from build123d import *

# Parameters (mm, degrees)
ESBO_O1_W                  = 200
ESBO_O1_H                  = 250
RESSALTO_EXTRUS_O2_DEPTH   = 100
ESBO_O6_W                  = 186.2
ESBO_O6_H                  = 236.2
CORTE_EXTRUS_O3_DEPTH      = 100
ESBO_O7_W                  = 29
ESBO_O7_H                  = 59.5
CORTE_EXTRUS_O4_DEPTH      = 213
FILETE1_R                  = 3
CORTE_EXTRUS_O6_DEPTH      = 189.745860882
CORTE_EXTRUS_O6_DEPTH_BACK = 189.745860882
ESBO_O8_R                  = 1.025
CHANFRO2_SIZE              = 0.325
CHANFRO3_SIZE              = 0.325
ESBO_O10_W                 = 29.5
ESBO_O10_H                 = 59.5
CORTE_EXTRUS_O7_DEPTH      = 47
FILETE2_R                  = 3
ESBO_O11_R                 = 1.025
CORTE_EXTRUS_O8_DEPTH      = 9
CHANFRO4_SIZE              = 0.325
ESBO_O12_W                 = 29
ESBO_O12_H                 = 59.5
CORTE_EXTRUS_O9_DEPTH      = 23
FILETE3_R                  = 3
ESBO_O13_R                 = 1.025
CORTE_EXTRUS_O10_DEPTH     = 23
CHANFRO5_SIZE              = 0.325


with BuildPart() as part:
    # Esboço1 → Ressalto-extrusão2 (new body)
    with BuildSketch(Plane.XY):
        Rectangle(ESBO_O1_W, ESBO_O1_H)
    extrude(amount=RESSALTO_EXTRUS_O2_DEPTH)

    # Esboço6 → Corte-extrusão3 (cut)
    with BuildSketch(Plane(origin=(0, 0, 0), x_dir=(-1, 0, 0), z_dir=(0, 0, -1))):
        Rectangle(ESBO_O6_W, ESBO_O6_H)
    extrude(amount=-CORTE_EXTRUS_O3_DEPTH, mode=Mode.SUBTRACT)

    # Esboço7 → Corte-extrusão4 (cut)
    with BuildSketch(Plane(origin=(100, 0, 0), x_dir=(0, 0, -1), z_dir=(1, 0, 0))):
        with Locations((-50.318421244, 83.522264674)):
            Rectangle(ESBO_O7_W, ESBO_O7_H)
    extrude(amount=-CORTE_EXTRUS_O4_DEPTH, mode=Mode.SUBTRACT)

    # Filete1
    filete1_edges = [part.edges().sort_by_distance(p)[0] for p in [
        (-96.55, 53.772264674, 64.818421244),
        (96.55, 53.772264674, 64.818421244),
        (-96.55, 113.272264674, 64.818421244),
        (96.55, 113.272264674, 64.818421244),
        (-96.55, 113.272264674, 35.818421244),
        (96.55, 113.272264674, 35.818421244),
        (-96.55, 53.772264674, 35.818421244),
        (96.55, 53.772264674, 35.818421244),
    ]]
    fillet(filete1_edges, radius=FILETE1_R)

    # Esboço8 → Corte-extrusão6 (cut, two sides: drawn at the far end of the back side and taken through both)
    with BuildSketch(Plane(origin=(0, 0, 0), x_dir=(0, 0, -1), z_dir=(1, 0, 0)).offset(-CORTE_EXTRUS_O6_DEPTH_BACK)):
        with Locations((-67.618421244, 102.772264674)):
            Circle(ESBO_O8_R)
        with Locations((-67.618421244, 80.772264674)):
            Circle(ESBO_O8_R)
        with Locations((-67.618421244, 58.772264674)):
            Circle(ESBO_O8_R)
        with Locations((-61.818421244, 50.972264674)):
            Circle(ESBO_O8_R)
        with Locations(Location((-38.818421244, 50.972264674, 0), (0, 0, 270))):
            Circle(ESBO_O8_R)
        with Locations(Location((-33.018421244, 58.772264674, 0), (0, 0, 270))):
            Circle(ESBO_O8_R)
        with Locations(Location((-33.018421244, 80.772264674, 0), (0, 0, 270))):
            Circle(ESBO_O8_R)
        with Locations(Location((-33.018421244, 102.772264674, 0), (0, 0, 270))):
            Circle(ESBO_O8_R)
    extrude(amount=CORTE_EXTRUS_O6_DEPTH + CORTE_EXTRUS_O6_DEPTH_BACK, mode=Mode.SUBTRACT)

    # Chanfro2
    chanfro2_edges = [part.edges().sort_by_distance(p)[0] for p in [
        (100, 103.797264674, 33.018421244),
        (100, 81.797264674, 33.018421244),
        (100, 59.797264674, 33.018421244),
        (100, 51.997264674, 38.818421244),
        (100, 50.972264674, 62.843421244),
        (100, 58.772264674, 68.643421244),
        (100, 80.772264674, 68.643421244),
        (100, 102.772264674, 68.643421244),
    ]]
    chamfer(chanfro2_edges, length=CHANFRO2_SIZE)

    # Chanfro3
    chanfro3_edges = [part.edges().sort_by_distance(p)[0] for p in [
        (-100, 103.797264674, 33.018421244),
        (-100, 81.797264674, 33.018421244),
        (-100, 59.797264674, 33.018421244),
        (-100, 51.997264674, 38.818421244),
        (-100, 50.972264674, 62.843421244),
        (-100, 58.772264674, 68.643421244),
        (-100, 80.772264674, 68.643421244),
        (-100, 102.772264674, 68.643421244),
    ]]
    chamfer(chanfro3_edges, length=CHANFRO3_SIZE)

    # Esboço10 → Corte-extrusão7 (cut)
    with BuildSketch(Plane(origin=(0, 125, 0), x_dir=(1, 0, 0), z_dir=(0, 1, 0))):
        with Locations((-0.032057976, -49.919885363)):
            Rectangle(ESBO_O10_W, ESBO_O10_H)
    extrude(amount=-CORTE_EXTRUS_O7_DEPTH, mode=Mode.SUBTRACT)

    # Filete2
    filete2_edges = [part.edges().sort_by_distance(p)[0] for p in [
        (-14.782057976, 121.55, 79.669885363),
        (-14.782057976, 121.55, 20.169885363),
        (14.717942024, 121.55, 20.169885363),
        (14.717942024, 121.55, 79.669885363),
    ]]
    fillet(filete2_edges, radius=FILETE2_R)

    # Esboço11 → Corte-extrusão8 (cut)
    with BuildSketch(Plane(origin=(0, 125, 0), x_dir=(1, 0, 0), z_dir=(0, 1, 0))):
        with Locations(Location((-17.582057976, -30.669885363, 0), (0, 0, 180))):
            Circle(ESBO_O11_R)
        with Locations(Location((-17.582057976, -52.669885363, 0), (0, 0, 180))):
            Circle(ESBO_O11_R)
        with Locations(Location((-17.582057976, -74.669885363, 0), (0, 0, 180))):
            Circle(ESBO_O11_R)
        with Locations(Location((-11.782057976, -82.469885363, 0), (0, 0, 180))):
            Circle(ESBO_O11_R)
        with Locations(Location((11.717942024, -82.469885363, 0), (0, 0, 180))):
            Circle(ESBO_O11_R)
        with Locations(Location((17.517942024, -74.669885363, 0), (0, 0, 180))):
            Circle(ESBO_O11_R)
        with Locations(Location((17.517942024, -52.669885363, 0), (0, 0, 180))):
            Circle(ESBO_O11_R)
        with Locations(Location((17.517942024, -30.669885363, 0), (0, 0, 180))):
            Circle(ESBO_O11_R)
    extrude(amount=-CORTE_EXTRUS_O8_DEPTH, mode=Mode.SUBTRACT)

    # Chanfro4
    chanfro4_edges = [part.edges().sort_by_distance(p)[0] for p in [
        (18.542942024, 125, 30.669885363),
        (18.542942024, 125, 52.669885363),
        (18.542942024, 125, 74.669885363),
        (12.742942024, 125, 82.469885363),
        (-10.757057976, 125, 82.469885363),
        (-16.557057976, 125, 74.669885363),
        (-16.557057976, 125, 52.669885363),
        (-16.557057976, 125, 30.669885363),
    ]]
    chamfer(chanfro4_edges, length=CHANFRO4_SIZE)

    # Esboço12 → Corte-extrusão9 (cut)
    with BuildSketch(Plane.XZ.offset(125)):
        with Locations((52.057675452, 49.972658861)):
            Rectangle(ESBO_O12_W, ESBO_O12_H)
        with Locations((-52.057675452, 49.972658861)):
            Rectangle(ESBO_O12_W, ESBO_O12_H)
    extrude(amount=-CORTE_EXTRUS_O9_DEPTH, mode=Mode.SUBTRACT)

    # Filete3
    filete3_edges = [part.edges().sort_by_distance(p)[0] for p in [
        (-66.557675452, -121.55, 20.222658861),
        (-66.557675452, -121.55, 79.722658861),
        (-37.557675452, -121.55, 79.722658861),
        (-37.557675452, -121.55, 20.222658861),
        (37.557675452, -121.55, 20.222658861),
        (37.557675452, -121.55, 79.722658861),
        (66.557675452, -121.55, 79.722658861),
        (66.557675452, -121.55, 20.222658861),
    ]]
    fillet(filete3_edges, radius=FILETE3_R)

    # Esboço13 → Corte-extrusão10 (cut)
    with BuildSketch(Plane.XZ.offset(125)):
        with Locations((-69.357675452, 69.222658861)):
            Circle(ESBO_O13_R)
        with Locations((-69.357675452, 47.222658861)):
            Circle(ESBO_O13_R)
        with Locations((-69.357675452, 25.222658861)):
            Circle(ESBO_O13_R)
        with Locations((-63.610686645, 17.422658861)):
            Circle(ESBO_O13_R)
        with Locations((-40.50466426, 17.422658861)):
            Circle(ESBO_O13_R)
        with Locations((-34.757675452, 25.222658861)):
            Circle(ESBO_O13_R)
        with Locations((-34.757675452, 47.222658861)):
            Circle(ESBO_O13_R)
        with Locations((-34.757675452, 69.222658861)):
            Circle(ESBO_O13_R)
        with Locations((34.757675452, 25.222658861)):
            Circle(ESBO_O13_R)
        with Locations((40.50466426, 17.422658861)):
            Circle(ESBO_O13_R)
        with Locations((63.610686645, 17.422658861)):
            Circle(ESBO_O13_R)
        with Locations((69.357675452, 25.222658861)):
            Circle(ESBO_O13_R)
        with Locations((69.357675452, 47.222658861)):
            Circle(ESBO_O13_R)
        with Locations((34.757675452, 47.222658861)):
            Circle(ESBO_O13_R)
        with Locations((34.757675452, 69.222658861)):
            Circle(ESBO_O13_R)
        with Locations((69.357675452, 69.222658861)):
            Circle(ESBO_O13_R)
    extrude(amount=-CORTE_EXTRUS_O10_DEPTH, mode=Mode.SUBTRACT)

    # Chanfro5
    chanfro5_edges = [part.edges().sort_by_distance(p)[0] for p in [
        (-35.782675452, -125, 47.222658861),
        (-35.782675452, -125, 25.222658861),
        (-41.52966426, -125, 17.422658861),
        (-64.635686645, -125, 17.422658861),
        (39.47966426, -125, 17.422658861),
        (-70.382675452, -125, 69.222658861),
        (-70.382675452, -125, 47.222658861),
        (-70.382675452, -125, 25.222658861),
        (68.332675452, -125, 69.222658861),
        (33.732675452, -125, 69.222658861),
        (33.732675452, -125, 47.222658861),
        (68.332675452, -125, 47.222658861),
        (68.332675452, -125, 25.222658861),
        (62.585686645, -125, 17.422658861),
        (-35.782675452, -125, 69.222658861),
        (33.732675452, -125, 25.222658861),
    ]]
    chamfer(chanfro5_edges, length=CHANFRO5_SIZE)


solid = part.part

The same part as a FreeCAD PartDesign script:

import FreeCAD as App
import Part
import Sketcher


def edges_at(feature, points):
    """Names of the edges that pass closest to the given points."""
    edges = feature.Shape.Edges
    near = lambda p: min(range(len(edges)), key=lambda i: edges[i].distToShape(Part.Vertex(*p))[0])
    return sorted({f"Edge{near(p) + 1}" for p in points})

doc = App.newDocument("Part")
body = doc.addObject("PartDesign::Body", "Body")

# Sketch on XY plane
sketch1 = doc.addObject("Sketcher::SketchObject", "Sketch")
body.addObject(sketch1)
sketch1.AttachmentSupport = (doc.XY_Plane, [""])
sketch1.MapMode = "FlatFace"
sketch1.addGeometry([
    Part.LineSegment(App.Vector(-100, 125, 0), App.Vector(-100, -125, 0)),
    Part.LineSegment(App.Vector(-100, -125, 0), App.Vector(100, -125, 0)),
    Part.LineSegment(App.Vector(100, -125, 0), App.Vector(100, 125, 0)),
    Part.LineSegment(App.Vector(100, 125, 0), App.Vector(-100, 125, 0)),
], False)
sketch1.addConstraint([
    Sketcher.Constraint("Coincident", 0, 2, 1, 1),
    Sketcher.Constraint("Coincident", 1, 2, 2, 1),
    Sketcher.Constraint("Coincident", 2, 2, 3, 1),
    Sketcher.Constraint("Coincident", 3, 2, 0, 1),
    Sketcher.Constraint("Vertical", 0),
    Sketcher.Constraint("Horizontal", 1),
    Sketcher.Constraint("Vertical", 2),
    Sketcher.Constraint("Horizontal", 3),
    Sketcher.Constraint("Symmetric", 0, 2, 2, 2, -1, 1),
    Sketcher.Constraint("DistanceX", 1, 1, 1, 2, 200.0),
    Sketcher.Constraint("DistanceY", 0, 2, 0, 1, 250.0),
])
pad1 = doc.addObject("PartDesign::Pad", "Pad")
body.addObject(pad1)
pad1.Profile = sketch1
pad1.Length = 100

# Sketch on XY plane
sketch2 = doc.addObject("Sketcher::SketchObject", "Sketch001")
body.addObject(sketch2)
sketch2.AttachmentSupport = (doc.XY_Plane, [""])
sketch2.MapMode = "FlatFace"
sketch2.addGeometry([
    Part.LineSegment(App.Vector(93, 118, 0), App.Vector(93, -118, 0)),
    Part.LineSegment(App.Vector(93, -118, 0), App.Vector(-93, -118, 0)),
    Part.LineSegment(App.Vector(-93, -118, 0), App.Vector(-93, 118, 0)),
    Part.LineSegment(App.Vector(-93, 118, 0), App.Vector(93, 118, 0)),
], False)
sketch2.addConstraint([
    Sketcher.Constraint("Coincident", 0, 2, 1, 1),
    Sketcher.Constraint("Coincident", 1, 2, 2, 1),
    Sketcher.Constraint("Coincident", 2, 2, 3, 1),
    Sketcher.Constraint("Coincident", 3, 2, 0, 1),
    Sketcher.Constraint("Vertical", 0),
    Sketcher.Constraint("Horizontal", 1),
    Sketcher.Constraint("Vertical", 2),
    Sketcher.Constraint("Horizontal", 3),
    Sketcher.Constraint("Symmetric", 0, 2, 2, 2, -1, 1),
    Sketcher.Constraint("DistanceX", 1, 2, 1, 1, 186.2),
    Sketcher.Constraint("DistanceY", 0, 2, 0, 1, 236.2),
])
pocket1 = doc.addObject("PartDesign::Pocket", "Pocket")
body.addObject(pocket1)
pocket1.Profile = sketch2
pocket1.Length = 100
pocket1.Reversed = True

# Sketch on YZ plane
sketch3 = doc.addObject("Sketcher::SketchObject", "Sketch002")
body.addObject(sketch3)
sketch3.AttachmentSupport = (doc.YZ_Plane, [""])
sketch3.MapMode = "FlatFace"
sketch3.AttachmentOffset = App.Placement(App.Vector(0, 0, 100), App.Rotation())
sketch3.addGeometry([
    Part.LineSegment(App.Vector(113, 65, 0), App.Vector(54, 65, 0)),
    Part.LineSegment(App.Vector(54, 65, 0), App.Vector(54, 36, 0)),
    Part.LineSegment(App.Vector(54, 36, 0), App.Vector(113, 36, 0)),
    Part.LineSegment(App.Vector(113, 36, 0), App.Vector(113, 65, 0)),
], False)
sketch3.addConstraint([
    Sketcher.Constraint("Coincident", 0, 2, 1, 1),
    Sketcher.Constraint("Coincident", 1, 2, 2, 1),
    Sketcher.Constraint("Coincident", 2, 2, 3, 1),
    Sketcher.Constraint("Coincident", 3, 2, 0, 1),
    Sketcher.Constraint("Horizontal", 0),
    Sketcher.Constraint("Vertical", 1),
    Sketcher.Constraint("Horizontal", 2),
    Sketcher.Constraint("Vertical", 3),
    Sketcher.Constraint("DistanceY", 1, 2, 1, 1, 29.0),
    Sketcher.Constraint("DistanceX", 0, 2, 0, 1, 59.5),
    Sketcher.Constraint("DistanceY", -1, 1, 0, 2, 64.818421),
    Sketcher.Constraint("DistanceX", -1, 1, 0, 2, 53.772265),
])
pocket2 = doc.addObject("PartDesign::Pocket", "Pocket001")
body.addObject(pocket2)
pocket2.Profile = sketch3
pocket2.Length = 213
doc.recompute()

fillet = doc.addObject("PartDesign::Fillet", "Fillet")
body.addObject(fillet)
fillet.Base = (pocket2, edges_at(pocket2, [
    (-96.55, 53.772, 64.818),
    (96.55, 53.772, 64.818),
    (-96.55, 113.272, 64.818),
    (96.55, 113.272, 64.818),
    (-96.55, 113.272, 35.818),
    (96.55, 113.272, 35.818),
    (-96.55, 53.772, 35.818),
    (96.55, 53.772, 35.818),
]))
fillet.Radius = 3

# Sketch on YZ plane
sketch4 = doc.addObject("Sketcher::SketchObject", "Sketch003")
body.addObject(sketch4)
sketch4.AttachmentSupport = (doc.YZ_Plane, [""])
sketch4.MapMode = "FlatFace"
sketch4.addGeometry([
    Part.Circle(App.Vector(102.8, 67.6, 0), App.Vector(0, 0, 1), 1),  # 0
    Part.Circle(App.Vector(80.8, 67.6, 0), App.Vector(0, 0, 1), 1),  # 1
    Part.Circle(App.Vector(58.8, 67.6, 0), App.Vector(0, 0, 1), 1),  # 2
    Part.Circle(App.Vector(51, 61.8, 0), App.Vector(0, 0, 1), 1),  # 3
    Part.Circle(App.Vector(51, 38.8, 0), App.Vector(0, 0, 1), 1),  # 4
    Part.Circle(App.Vector(58.8, 33, 0), App.Vector(0, 0, 1), 1),  # 5
    Part.Circle(App.Vector(80.8, 33, 0), App.Vector(0, 0, 1), 1),  # 6
    Part.Circle(App.Vector(102.8, 33, 0), App.Vector(0, 0, 1), 1),  # 7
], False)
sketch4.addConstraint([
    Sketcher.Constraint("Equal", 0, 1),
    Sketcher.Constraint("Equal", 1, 2),
    Sketcher.Constraint("Equal", 2, 3),
    Sketcher.Constraint("Equal", 3, 4),
    Sketcher.Constraint("Equal", 4, 5),
    Sketcher.Constraint("Equal", 5, 6),
    Sketcher.Constraint("Equal", 6, 7),
    Sketcher.Constraint("Horizontal", 0, 3, 1, 3),
    Sketcher.Constraint("Horizontal", 1, 3, 2, 3),
    Sketcher.Constraint("Horizontal", 5, 3, 6, 3),
    Sketcher.Constraint("Horizontal", 6, 3, 7, 3),
    Sketcher.Constraint("Vertical", 3, 3, 4, 3),
    Sketcher.Constraint("Vertical", 2, 3, 5, 3),
    Sketcher.Constraint("Vertical", 1, 3, 6, 3),
    Sketcher.Constraint("Vertical", 0, 3, 7, 3),
    Sketcher.Constraint("Diameter", 0, 2.05),
    Sketcher.Constraint("DistanceX", 1, 3, 0, 3, 22.0),
    Sketcher.Constraint("DistanceX", 2, 3, 1, 3, 22.0),
    Sketcher.Constraint("DistanceY", 4, 3, 3, 3, 23.0),
    Sketcher.Constraint("DistanceX", 3, 3, 2, 3, 7.8),
    Sketcher.Constraint("DistanceY", 3, 3, 2, 3, 5.8),
    Sketcher.Constraint("DistanceY", 5, 3, 4, 3, 5.8),
    Sketcher.Constraint("DistanceY", -1, 1, 0, 3, 67.618421),
    Sketcher.Constraint("DistanceX", -1, 1, 0, 3, 102.772265),
])
pocket3 = doc.addObject("PartDesign::Pocket", "Pocket002")
body.addObject(pocket3)
pocket3.Profile = sketch4
pocket3.Type = "ThroughAll"
pocket3.Midplane = True
doc.recompute()

chamfer = doc.addObject("PartDesign::Chamfer", "Chamfer")
body.addObject(chamfer)
chamfer.Base = (pocket3, edges_at(pocket3, [
    (100, 103.797, 33.018),
    (100, 81.797, 33.018),
    (100, 59.797, 33.018),
    (100, 51.997, 38.818),
    (100, 50.972, 62.843),
    (100, 58.772, 68.643),
    (100, 80.772, 68.643),
    (100, 102.772, 68.643),
]))
chamfer.Size = 0.325
doc.recompute()

chamfer2 = doc.addObject("PartDesign::Chamfer", "Chamfer001")
body.addObject(chamfer2)
chamfer2.Base = (chamfer, edges_at(chamfer, [
    (-100, 103.797, 33.018),
    (-100, 81.797, 33.018),
    (-100, 59.797, 33.018),
    (-100, 51.997, 38.818),
    (-100, 50.972, 62.843),
    (-100, 58.772, 68.643),
    (-100, 80.772, 68.643),
    (-100, 102.772, 68.643),
]))
chamfer2.Size = 0.325

# Sketch on XZ plane
sketch5 = doc.addObject("Sketcher::SketchObject", "Sketch004")
body.addObject(sketch5)
sketch5.AttachmentSupport = (doc.XZ_Plane, [""])
sketch5.MapMode = "FlatFace"
sketch5.AttachmentOffset = App.Placement(App.Vector(0, 0, -125), App.Rotation())
sketch5.addGeometry([
    Part.LineSegment(App.Vector(-15, 20, 0), App.Vector(-15, 80, 0)),
    Part.LineSegment(App.Vector(-15, 80, 0), App.Vector(15, 80, 0)),
    Part.LineSegment(App.Vector(15, 80, 0), App.Vector(15, 20, 0)),
    Part.LineSegment(App.Vector(15, 20, 0), App.Vector(-15, 20, 0)),
], False)
sketch5.addConstraint([
    Sketcher.Constraint("Coincident", 0, 2, 1, 1),
    Sketcher.Constraint("Coincident", 1, 2, 2, 1),
    Sketcher.Constraint("Coincident", 2, 2, 3, 1),
    Sketcher.Constraint("Coincident", 3, 2, 0, 1),
    Sketcher.Constraint("Vertical", 0),
    Sketcher.Constraint("Horizontal", 1),
    Sketcher.Constraint("Vertical", 2),
    Sketcher.Constraint("Horizontal", 3),
    Sketcher.Constraint("DistanceX", 1, 1, 1, 2, 29.5),
    Sketcher.Constraint("DistanceY", 0, 1, 0, 2, 59.5),
    Sketcher.Constraint("DistanceX", 0, 2, -1, 1, 14.782058),
    Sketcher.Constraint("DistanceY", -1, 1, 0, 2, 79.669885),
])
pocket4 = doc.addObject("PartDesign::Pocket", "Pocket003")
body.addObject(pocket4)
pocket4.Profile = sketch5
pocket4.Length = 47
pocket4.Reversed = True
doc.recompute()

fillet2 = doc.addObject("PartDesign::Fillet", "Fillet001")
body.addObject(fillet2)
fillet2.Base = (pocket4, edges_at(pocket4, [
    (-14.782, 121.55, 79.67),
    (-14.782, 121.55, 20.17),
    (14.718, 121.55, 20.17),
    (14.718, 121.55, 79.67),
]))
fillet2.Radius = 3

# Sketch on XZ plane
sketch6 = doc.addObject("Sketcher::SketchObject", "Sketch005")
body.addObject(sketch6)
sketch6.AttachmentSupport = (doc.XZ_Plane, [""])
sketch6.MapMode = "FlatFace"
sketch6.AttachmentOffset = App.Placement(App.Vector(0, 0, -125), App.Rotation())
sketch6.addGeometry([
    Part.Circle(App.Vector(-17.6, 30.7, 0), App.Vector(0, 0, 1), 1),  # 0
    Part.Circle(App.Vector(-17.6, 52.7, 0), App.Vector(0, 0, 1), 1),  # 1
    Part.Circle(App.Vector(-17.6, 74.7, 0), App.Vector(0, 0, 1), 1),  # 2
    Part.Circle(App.Vector(-11.8, 82.5, 0), App.Vector(0, 0, 1), 1),  # 3
    Part.Circle(App.Vector(11.7, 82.5, 0), App.Vector(0, 0, 1), 1),  # 4
    Part.Circle(App.Vector(17.5, 74.7, 0), App.Vector(0, 0, 1), 1),  # 5
    Part.Circle(App.Vector(17.5, 52.7, 0), App.Vector(0, 0, 1), 1),  # 6
    Part.Circle(App.Vector(17.5, 30.7, 0), App.Vector(0, 0, 1), 1),  # 7
], False)
sketch6.addConstraint([
    Sketcher.Constraint("Equal", 0, 1),
    Sketcher.Constraint("Equal", 1, 2),
    Sketcher.Constraint("Equal", 2, 3),
    Sketcher.Constraint("Equal", 3, 4),
    Sketcher.Constraint("Equal", 4, 5),
    Sketcher.Constraint("Equal", 5, 6),
    Sketcher.Constraint("Equal", 6, 7),
    Sketcher.Constraint("Horizontal", 3, 3, 4, 3),
    Sketcher.Constraint("Horizontal", 2, 3, 5, 3),
    Sketcher.Constraint("Horizontal", 1, 3, 6, 3),
    Sketcher.Constraint("Horizontal", 0, 3, 7, 3),
    Sketcher.Constraint("Vertical", 0, 3, 1, 3),
    Sketcher.Constraint("Vertical", 1, 3, 2, 3),
    Sketcher.Constraint("Vertical", 5, 3, 6, 3),
    Sketcher.Constraint("Vertical", 6, 3, 7, 3),
    Sketcher.Constraint("Diameter", 0, 2.05),
    Sketcher.Constraint("DistanceY", 0, 3, 1, 3, 22.0),
    Sketcher.Constraint("DistanceY", 1, 3, 2, 3, 22.0),
    Sketcher.Constraint("DistanceX", 2, 3, 3, 3, 5.8),
    Sketcher.Constraint("DistanceY", 2, 3, 3, 3, 7.8),
    Sketcher.Constraint("DistanceX", 3, 3, 4, 3, 23.5),
    Sketcher.Constraint("DistanceX", 4, 3, 5, 3, 5.8),
    Sketcher.Constraint("DistanceX", 0, 3, -1, 1, 17.582058),
    Sketcher.Constraint("DistanceY", -1, 1, 0, 3, 30.669885),
])
pocket5 = doc.addObject("PartDesign::Pocket", "Pocket004")
body.addObject(pocket5)
pocket5.Profile = sketch6
pocket5.Length = 9
pocket5.Reversed = True
doc.recompute()

chamfer3 = doc.addObject("PartDesign::Chamfer", "Chamfer002")
body.addObject(chamfer3)
chamfer3.Base = (pocket5, edges_at(pocket5, [
    (18.543, 125, 30.67),
    (18.543, 125, 52.67),
    (18.543, 125, 74.67),
    (12.743, 125, 82.47),
    (-10.757, 125, 82.47),
    (-16.557, 125, 74.67),
    (-16.557, 125, 52.67),
    (-16.557, 125, 30.67),
]))
chamfer3.Size = 0.325

# Sketch on XZ plane
sketch7 = doc.addObject("Sketcher::SketchObject", "Sketch006")
body.addObject(sketch7)
sketch7.AttachmentSupport = (doc.XZ_Plane, [""])
sketch7.MapMode = "FlatFace"
sketch7.AttachmentOffset = App.Placement(App.Vector(0, 0, 125), App.Rotation())
sketch7.addGeometry([
    Part.LineSegment(App.Vector(38, 80, 0), App.Vector(38, 20, 0)),  # 0
    Part.LineSegment(App.Vector(38, 20, 0), App.Vector(67, 20, 0)),  # 1
    Part.LineSegment(App.Vector(67, 20, 0), App.Vector(67, 80, 0)),  # 2
    Part.LineSegment(App.Vector(67, 80, 0), App.Vector(38, 80, 0)),  # 3
    Part.LineSegment(App.Vector(-67, 80, 0), App.Vector(-67, 20, 0)),  # 4
    Part.LineSegment(App.Vector(-67, 20, 0), App.Vector(-38, 20, 0)),  # 5
    Part.LineSegment(App.Vector(-38, 20, 0), App.Vector(-38, 80, 0)),  # 6
    Part.LineSegment(App.Vector(-38, 80, 0), App.Vector(-67, 80, 0)),  # 7
], False)
sketch7.addConstraint([
    Sketcher.Constraint("Coincident", 0, 2, 1, 1),
    Sketcher.Constraint("Coincident", 1, 2, 2, 1),
    Sketcher.Constraint("Coincident", 2, 2, 3, 1),
    Sketcher.Constraint("Coincident", 3, 2, 0, 1),
    Sketcher.Constraint("Coincident", 4, 2, 5, 1),
    Sketcher.Constraint("Coincident", 5, 2, 6, 1),
    Sketcher.Constraint("Coincident", 6, 2, 7, 1),
    Sketcher.Constraint("Coincident", 7, 2, 4, 1),
    Sketcher.Constraint("Vertical", 0),
    Sketcher.Constraint("Horizontal", 1),
    Sketcher.Constraint("Vertical", 2),
    Sketcher.Constraint("Horizontal", 3),
    Sketcher.Constraint("Vertical", 4),
    Sketcher.Constraint("Horizontal", 5),
    Sketcher.Constraint("Vertical", 6),
    Sketcher.Constraint("Horizontal", 7),
    Sketcher.Constraint("Symmetric", 1, 2, 4, 2, -2),
    Sketcher.Constraint("Symmetric", 3, 2, 6, 2, -2),
    Sketcher.Constraint("DistanceX", 1, 1, 1, 2, 29.0),
    Sketcher.Constraint("DistanceY", 0, 2, 0, 1, 59.5),
    Sketcher.Constraint("DistanceY", -1, 1, 0, 2, 20.222659),
    Sketcher.Constraint("DistanceX", 4, 2, 0, 2, 104.115351),
])
pocket6 = doc.addObject("PartDesign::Pocket", "Pocket005")
body.addObject(pocket6)
pocket6.Profile = sketch7
pocket6.Length = 23
doc.recompute()

fillet3 = doc.addObject("PartDesign::Fillet", "Fillet002")
body.addObject(fillet3)
fillet3.Base = (pocket6, edges_at(pocket6, [
    (-66.558, -121.55, 20.223),
    (-66.558, -121.55, 79.723),
    (-37.558, -121.55, 79.723),
    (-37.558, -121.55, 20.223),
    (37.558, -121.55, 20.223),
    (37.558, -121.55, 79.723),
    (66.558, -121.55, 79.723),
    (66.558, -121.55, 20.223),
]))
fillet3.Radius = 3

# Sketch on XZ plane
sketch8 = doc.addObject("Sketcher::SketchObject", "Sketch007")
body.addObject(sketch8)
sketch8.AttachmentSupport = (doc.XZ_Plane, [""])
sketch8.MapMode = "FlatFace"
sketch8.AttachmentOffset = App.Placement(App.Vector(0, 0, 125), App.Rotation())
sketch8.addGeometry([
    Part.Circle(App.Vector(-69.4, 69.2, 0), App.Vector(0, 0, 1), 1),  # 0
    Part.Circle(App.Vector(-69.4, 47.2, 0), App.Vector(0, 0, 1), 1),  # 1
    Part.Circle(App.Vector(-69.4, 25.2, 0), App.Vector(0, 0, 1), 1),  # 2
    Part.Circle(App.Vector(-63.6, 17.4, 0), App.Vector(0, 0, 1), 1),  # 3
    Part.Circle(App.Vector(-40.5, 17.4, 0), App.Vector(0, 0, 1), 1),  # 4
    Part.Circle(App.Vector(-34.8, 25.2, 0), App.Vector(0, 0, 1), 1),  # 5
    Part.Circle(App.Vector(-34.8, 47.2, 0), App.Vector(0, 0, 1), 1),  # 6
    Part.Circle(App.Vector(-34.8, 69.2, 0), App.Vector(0, 0, 1), 1),  # 7
    Part.Circle(App.Vector(34.8, 25.2, 0), App.Vector(0, 0, 1), 1),  # 8
    Part.Circle(App.Vector(40.5, 17.4, 0), App.Vector(0, 0, 1), 1),  # 9
    Part.Circle(App.Vector(63.6, 17.4, 0), App.Vector(0, 0, 1), 1),  # 10
    Part.Circle(App.Vector(69.4, 25.2, 0), App.Vector(0, 0, 1), 1),  # 11
    Part.Circle(App.Vector(69.4, 47.2, 0), App.Vector(0, 0, 1), 1),  # 12
    Part.Circle(App.Vector(34.8, 47.2, 0), App.Vector(0, 0, 1), 1),  # 13
    Part.Circle(App.Vector(34.8, 69.2, 0), App.Vector(0, 0, 1), 1),  # 14
    Part.Circle(App.Vector(69.4, 69.2, 0), App.Vector(0, 0, 1), 1),  # 15
], False)
sketch8.addConstraint([
    Sketcher.Constraint("Equal", 0, 1),
    Sketcher.Constraint("Equal", 1, 2),
    Sketcher.Constraint("Equal", 2, 3),
    Sketcher.Constraint("Equal", 3, 4),
    Sketcher.Constraint("Equal", 4, 5),
    Sketcher.Constraint("Equal", 5, 6),
    Sketcher.Constraint("Equal", 6, 7),
    Sketcher.Constraint("Equal", 7, 8),
    Sketcher.Constraint("Equal", 8, 9),
    Sketcher.Constraint("Equal", 9, 10),
    Sketcher.Constraint("Equal", 10, 11),
    Sketcher.Constraint("Equal", 11, 12),
    Sketcher.Constraint("Equal", 12, 13),
    Sketcher.Constraint("Equal", 13, 14),
    Sketcher.Constraint("Equal", 14, 15),
    Sketcher.Constraint("Symmetric", 5, 3, 8, 3, -2),
    Sketcher.Constraint("Symmetric", 4, 3, 9, 3, -2),
    Sketcher.Constraint("Symmetric", 3, 3, 10, 3, -2),
    Sketcher.Constraint("Symmetric", 2, 3, 11, 3, -2),
    Sketcher.Constraint("Symmetric", 1, 3, 12, 3, -2),
    Sketcher.Constraint("Symmetric", 6, 3, 13, 3, -2),
    Sketcher.Constraint("Symmetric", 7, 3, 14, 3, -2),
    Sketcher.Constraint("Symmetric", 0, 3, 15, 3, -2),
    Sketcher.Constraint("Horizontal", 3, 3, 4, 3),
    Sketcher.Constraint("Horizontal", 2, 3, 5, 3),
    Sketcher.Constraint("Horizontal", 1, 3, 6, 3),
    Sketcher.Constraint("Horizontal", 0, 3, 7, 3),
    Sketcher.Constraint("Vertical", 0, 3, 1, 3),
    Sketcher.Constraint("Vertical", 1, 3, 2, 3),
    Sketcher.Constraint("Vertical", 5, 3, 6, 3),
    Sketcher.Constraint("Vertical", 6, 3, 7, 3),
    Sketcher.Constraint("Diameter", 0, 2.05),
    Sketcher.Constraint("DistanceY", 1, 3, 0, 3, 22.0),
    Sketcher.Constraint("DistanceY", 2, 3, 1, 3, 22.0),
    Sketcher.Constraint("DistanceY", 3, 3, 2, 3, 7.8),
    Sketcher.Constraint("DistanceX", 2, 3, 5, 3, 34.6),
    Sketcher.Constraint("DistanceY", -1, 1, 0, 3, 69.222659),
    Sketcher.Constraint("DistanceX", 2, 3, 3, 3, 5.746989),
    Sketcher.Constraint("DistanceX", 2, 3, 4, 3, 28.853011),
    Sketcher.Constraint("DistanceX", 5, 3, 8, 3, 69.515351),
])
pocket7 = doc.addObject("PartDesign::Pocket", "Pocket006")
body.addObject(pocket7)
pocket7.Profile = sketch8
pocket7.Length = 23
doc.recompute()

chamfer4 = doc.addObject("PartDesign::Chamfer", "Chamfer003")
body.addObject(chamfer4)
chamfer4.Base = (pocket7, edges_at(pocket7, [
    (-35.783, -125, 47.223),
    (-35.783, -125, 25.223),
    (-41.53, -125, 17.423),
    (-64.636, -125, 17.423),
    (39.48, -125, 17.423),
    (-70.383, -125, 69.223),
    (-70.383, -125, 47.223),
    (-70.383, -125, 25.223),
    (68.333, -125, 69.223),
    (33.733, -125, 69.223),
    (33.733, -125, 47.223),
    (68.333, -125, 47.223),
    (68.333, -125, 25.223),
    (62.586, -125, 17.423),
    (-35.783, -125, 69.223),
    (33.733, -125, 25.223),
]))
chamfer4.Size = 0.325

doc.recompute()
